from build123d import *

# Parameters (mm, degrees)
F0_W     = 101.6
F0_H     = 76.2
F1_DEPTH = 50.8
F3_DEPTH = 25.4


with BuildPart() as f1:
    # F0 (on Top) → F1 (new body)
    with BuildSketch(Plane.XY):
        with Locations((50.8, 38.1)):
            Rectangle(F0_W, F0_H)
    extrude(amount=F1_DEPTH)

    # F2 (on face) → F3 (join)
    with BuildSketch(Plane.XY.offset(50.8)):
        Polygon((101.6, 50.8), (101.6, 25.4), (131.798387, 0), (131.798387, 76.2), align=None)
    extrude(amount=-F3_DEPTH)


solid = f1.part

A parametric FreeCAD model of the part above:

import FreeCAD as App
import Part
import Sketcher
from FreeCAD import Vector
Q = App.Units.Quantity

doc = App.newDocument("Part")
body = doc.addObject("PartDesign::Body", "Body")

# Sketch on XY plane
sketch1 = doc.addObject("Sketcher::SketchObject", "Sketch")
body.addObject(sketch1)
sketch1.AttachmentSupport = (doc.XY_Plane, [""])
sketch1.MapMode = "FlatFace"
sketch1.addGeometry(Part.LineSegment(Vector(0, 76.2, 0), Vector(0, 0, 0)), False)
sketch1.addGeometry(Part.LineSegment(Vector(0, 0, 0), Vector(101.6, 0, 0)), False)
sketch1.addGeometry(Part.LineSegment(Vector(101.6, 0, 0), Vector(101.6, 76.2, 0)), False)
sketch1.addGeometry(Part.LineSegment(Vector(101.6, 76.2, 0), Vector(0, 76.2, 0)), False)
sketch1.addConstraint(Sketcher.Constraint("Coincident", 0, 2, 1, 1))
sketch1.addConstraint(Sketcher.Constraint("Coincident", 1, 2, 2, 1))
sketch1.addConstraint(Sketcher.Constraint("Coincident", 2, 2, 3, 1))
sketch1.addConstraint(Sketcher.Constraint("Coincident", 3, 2, 0, 1))
sketch1.addConstraint(Sketcher.Constraint("Vertical", 0))
sketch1.addConstraint(Sketcher.Constraint("Horizontal", 1))
sketch1.addConstraint(Sketcher.Constraint("Vertical", 2))
sketch1.addConstraint(Sketcher.Constraint("Horizontal", 3))
sketch1.addConstraint(Sketcher.Constraint("Coincident", 0, 2, -1, 1))
sketch1.addConstraint(Sketcher.Constraint("DistanceX", 1, 1, 1, 2, Q("4 in")))
sketch1.addConstraint(Sketcher.Constraint("DistanceY", 0, 2, 0, 1, Q("3 in")))
pad1 = doc.addObject("PartDesign::Pad", "Pad")
body.addObject(pad1)
pad1.Profile = sketch1
pad1.Length = Q("2 in")

# Sketch on XY plane
sketch2 = doc.addObject("Sketcher::SketchObject", "Sketch001")
body.addObject(sketch2)
sketch2.AttachmentSupport = (doc.XY_Plane, [""])
sketch2.MapMode = "FlatFace"
sketch2.AttachmentOffset = App.Placement(Vector(0, 0, 2 * 25.4), App.Rotation())
sketch2.addGeometry(Part.LineSegment(Vector(101.6, 50.8, 0), Vector(101.6, 25.4, 0)), False)
sketch2.addGeometry(Part.LineSegment(Vector(101.6, 25.4, 0), Vector(131.798387, 0, 0)), False)
sketch2.addGeometry(Part.LineSegment(Vector(131.798387, 0, 0), Vector(131.798387, 76.2, 0)), False)
sketch2.addGeometry(Part.LineSegment(Vector(131.798387, 76.2, 0), Vector(101.6, 50.8, 0)), False)
sketch2.addConstraint(Sketcher.Constraint("Coincident", 0, 2, 1, 1))
sketch2.addConstraint(Sketcher.Constraint("Coincident", 1, 2, 2, 1))
sketch2.addConstraint(Sketcher.Constraint("Coincident", 2, 2, 3, 1))
sketch2.addConstraint(Sketcher.Constraint("Coincident", 3, 2, 0, 1))
sketch2.addConstraint(Sketcher.Constraint("Vertical", 0))
sketch2.addConstraint(Sketcher.Constraint("Vertical", 2))
sketch2.addConstraint(Sketcher.Constraint("PointOnObject", 1, 2, -1))
sketch2.addConstraint(Sketcher.Constraint("Equal", 1, 3))
sketch2.addConstraint(Sketcher.Constraint("DistanceY", 0, 2, 0, 1, Q("1 in")))
sketch2.addConstraint(Sketcher.Constraint("DistanceY", 2, 1, 2, 2, Q("3 in")))
sketch2.addConstraint(Sketcher.Constraint("DistanceX", -1, 1, 0, 2, Q("4 in")))
sketch2.addConstraint(Sketcher.Constraint("Distance", 1, 39.460139))
pad2 = doc.addObject("PartDesign::Pad", "Pad001")
body.addObject(pad2)
pad2.Profile = sketch2
pad2.Length = Q("1 in")
pad2.Reversed = True

doc.recompute()
